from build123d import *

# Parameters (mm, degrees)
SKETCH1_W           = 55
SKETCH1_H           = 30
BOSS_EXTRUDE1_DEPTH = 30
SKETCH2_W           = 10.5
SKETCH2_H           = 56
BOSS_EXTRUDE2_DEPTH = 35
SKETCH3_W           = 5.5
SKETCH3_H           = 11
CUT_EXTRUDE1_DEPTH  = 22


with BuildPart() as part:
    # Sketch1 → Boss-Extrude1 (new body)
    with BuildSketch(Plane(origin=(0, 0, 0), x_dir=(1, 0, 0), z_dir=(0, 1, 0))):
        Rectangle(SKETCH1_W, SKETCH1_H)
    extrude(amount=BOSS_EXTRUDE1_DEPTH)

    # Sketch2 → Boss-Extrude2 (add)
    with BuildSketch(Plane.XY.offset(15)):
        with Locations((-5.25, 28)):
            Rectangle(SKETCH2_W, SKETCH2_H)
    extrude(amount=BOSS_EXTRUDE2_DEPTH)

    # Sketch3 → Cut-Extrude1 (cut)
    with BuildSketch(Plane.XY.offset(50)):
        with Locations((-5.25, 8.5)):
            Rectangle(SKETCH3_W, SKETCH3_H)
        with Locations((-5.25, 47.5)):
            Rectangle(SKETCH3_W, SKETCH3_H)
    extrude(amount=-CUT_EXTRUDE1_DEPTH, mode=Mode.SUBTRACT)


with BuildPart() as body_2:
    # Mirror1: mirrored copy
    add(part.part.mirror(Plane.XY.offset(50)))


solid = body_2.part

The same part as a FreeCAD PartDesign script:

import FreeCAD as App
import Part
import Sketcher

V = App.Vector


def add_polygon(sketch, points):
    """Adds a closed chain of lines whose ends are joined by coincident constraints."""
    first, n = sketch.GeometryCount, len(points)
    for a, b in zip(points, points[1:] + points[:1]):
        sketch.addGeometry(Part.LineSegment(App.Vector(*a, 0), App.Vector(*b, 0)), False)
    for i in range(n):
        sketch.addConstraint(Sketcher.Constraint("Coincident", first + i, 2, first + (i + 1) % n, 1))

doc = App.newDocument("Part")
params = doc.addObject("Spreadsheet::Sheet", "Params")
for row, (alias, value) in enumerate([
    ("sketch1_width", "55 mm"),
    ("sketch1_height", "30 mm"),
    ("pad1_length", "30 mm"),
    ("sketch2_height", "56 mm"),
    ("sketch2_width", "10.5 mm"),
    ("pad2_length", "35 mm"),
    ("sketch3_height", "11 mm"),
    ("sketch3_width", "5.5 mm"),
    ("pocket1_length", "22 mm"),
], start=1):
    params.set(f"A{row}", alias)
    params.set(f"B{row}", "=" + value)
    params.setAlias(f"B{row}", alias)

body = doc.addObject("PartDesign::Body", "Body")

# Sketch on XZ plane
sketch1 = doc.addObject("Sketcher::SketchObject", "Sketch")
body.addObject(sketch1)
sketch1.AttachmentSupport = (doc.XZ_Plane, [""])
sketch1.MapMode = "FlatFace"
add_polygon(sketch1, [(-27.5, -15), (-27.5, 15), (27.5, 15), (27.5, -15)])  # lines 0-3
sketch1.addConstraint(Sketcher.Constraint("Vertical", 0))
sketch1.addConstraint(Sketcher.Constraint("Horizontal", 1))
sketch1.addConstraint(Sketcher.Constraint("Vertical", 2))
sketch1.addConstraint(Sketcher.Constraint("Horizontal", 3))
sketch1.addConstraint(Sketcher.Constraint("Symmetric", 0, 2, 2, 2, -1, 1))
sketch1.addConstraint(Sketcher.Constraint("DistanceX", 1, 1, 1, 2, 55.0))
sketch1.addConstraint(Sketcher.Constraint("DistanceY", 0, 1, 0, 2, 30.0))
sketch1.setExpression("Constraints[9]", "Params.sketch1_width")
sketch1.setExpression("Constraints[10]", "Params.sketch1_height")
pad1 = doc.addObject("PartDesign::Pad", "Pad")
body.addObject(pad1)
pad1.Profile = sketch1
pad1.setExpression("Length", "Params.pad1_length")
pad1.Reversed = True

# Sketch on XY plane
sketch2 = doc.addObject("Sketcher::SketchObject", "Sketch001")
body.addObject(sketch2)
sketch2.AttachmentSupport = (doc.XY_Plane, [""])
sketch2.MapMode = "FlatFace"
sketch2.AttachmentOffset = App.Placement(V(0, 0, 15), App.Rotation())
add_polygon(sketch2, [(-10.5, 56), (-10.5, 0), (0, 0), (0, 56)])  # lines 0-3
sketch2.addConstraint(Sketcher.Constraint("Vertical", 0))
sketch2.addConstraint(Sketcher.Constraint("Horizontal", 1))
sketch2.addConstraint(Sketcher.Constraint("Vertical", 2))
sketch2.addConstraint(Sketcher.Constraint("Horizontal", 3))
sketch2.addConstraint(Sketcher.Constraint("Coincident", 1, 2, -1, 1))
sketch2.addConstraint(Sketcher.Constraint("DistanceY", 0, 2, 0, 1, 56.0))
sketch2.addConstraint(Sketcher.Constraint("DistanceX", 1, 1, 1, 2, 10.5))
sketch2.setExpression("Constraints[9]", "Params.sketch2_height")
sketch2.setExpression("Constraints[10]", "Params.sketch2_width")
pad2 = doc.addObject("PartDesign::Pad", "Pad001")
body.addObject(pad2)
pad2.Profile = sketch2
pad2.setExpression("Length", "Params.pad2_length")

# Sketch on XY plane
sketch3 = doc.addObject("Sketcher::SketchObject", "Sketch002")
body.addObject(sketch3)
sketch3.AttachmentSupport = (doc.XY_Plane, [""])
sketch3.MapMode = "FlatFace"
sketch3.AttachmentOffset = App.Placement(V(0, 0, 50), App.Rotation())
add_polygon(sketch3, [(-8, 14), (-8, 3), (-2.5, 3), (-2.5, 14)])  # lines 0-3
add_polygon(sketch3, [(-8, 53), (-8, 42), (-2.5, 42), (-2.5, 53)])  # lines 4-7
sketch3.addConstraint(Sketcher.Constraint("Vertical", 0))
sketch3.addConstraint(Sketcher.Constraint("Horizontal", 1))
sketch3.addConstraint(Sketcher.Constraint("Vertical", 2))
sketch3.addConstraint(Sketcher.Constraint("Horizontal", 3))
sketch3.addConstraint(Sketcher.Constraint("Vertical", 4))
sketch3.addConstraint(Sketcher.Constraint("Horizontal", 5))
sketch3.addConstraint(Sketcher.Constraint("Vertical", 6))
sketch3.addConstraint(Sketcher.Constraint("Horizontal", 7))
sketch3.addConstraint(Sketcher.Constraint("Vertical", 3, 2, 4, 2))
sketch3.addConstraint(Sketcher.Constraint("Vertical", 2, 2, 5, 2))
sketch3.addConstraint(Sketcher.Constraint("Equal", 2, 4))
sketch3.addConstraint(Sketcher.Constraint("DistanceY", 0, 2, 0, 1, 11.0))
sketch3.addConstraint(Sketcher.Constraint("DistanceX", 1, 1, 1, 2, 5.5))
sketch3.addConstraint(Sketcher.Constraint("DistanceX", 0, 2, -1, 1, 8.0))
sketch3.addConstraint(Sketcher.Constraint("DistanceY", -1, 1, 0, 2, 3.0))
sketch3.addConstraint(Sketcher.Constraint("DistanceY", -1, 1, 4, 2, 42.0))
sketch3.setExpression("Constraints[19]", "Params.sketch3_height")
sketch3.setExpression("Constraints[20]", "Params.sketch3_width")
pocket1 = doc.addObject("PartDesign::Pocket", "Pocket")
body.addObject(pocket1)
pocket1.Profile = sketch3
pocket1.setExpression("Length", "Params.pocket1_length")
body2 = doc.addObject("PartDesign::Body", "Body001")
doc.recompute()

mirroring = doc.addObject("Part::Mirroring", "Mirroring")
mirroring.Source = body
mirroring.Base = V(0, 0, 50)
mirroring.Normal = V(0, 0, 1)
body2.BaseFeature = mirroring
doc.recompute()
body.Visibility = False
mirroring.Visibility = False

doc.recompute()
